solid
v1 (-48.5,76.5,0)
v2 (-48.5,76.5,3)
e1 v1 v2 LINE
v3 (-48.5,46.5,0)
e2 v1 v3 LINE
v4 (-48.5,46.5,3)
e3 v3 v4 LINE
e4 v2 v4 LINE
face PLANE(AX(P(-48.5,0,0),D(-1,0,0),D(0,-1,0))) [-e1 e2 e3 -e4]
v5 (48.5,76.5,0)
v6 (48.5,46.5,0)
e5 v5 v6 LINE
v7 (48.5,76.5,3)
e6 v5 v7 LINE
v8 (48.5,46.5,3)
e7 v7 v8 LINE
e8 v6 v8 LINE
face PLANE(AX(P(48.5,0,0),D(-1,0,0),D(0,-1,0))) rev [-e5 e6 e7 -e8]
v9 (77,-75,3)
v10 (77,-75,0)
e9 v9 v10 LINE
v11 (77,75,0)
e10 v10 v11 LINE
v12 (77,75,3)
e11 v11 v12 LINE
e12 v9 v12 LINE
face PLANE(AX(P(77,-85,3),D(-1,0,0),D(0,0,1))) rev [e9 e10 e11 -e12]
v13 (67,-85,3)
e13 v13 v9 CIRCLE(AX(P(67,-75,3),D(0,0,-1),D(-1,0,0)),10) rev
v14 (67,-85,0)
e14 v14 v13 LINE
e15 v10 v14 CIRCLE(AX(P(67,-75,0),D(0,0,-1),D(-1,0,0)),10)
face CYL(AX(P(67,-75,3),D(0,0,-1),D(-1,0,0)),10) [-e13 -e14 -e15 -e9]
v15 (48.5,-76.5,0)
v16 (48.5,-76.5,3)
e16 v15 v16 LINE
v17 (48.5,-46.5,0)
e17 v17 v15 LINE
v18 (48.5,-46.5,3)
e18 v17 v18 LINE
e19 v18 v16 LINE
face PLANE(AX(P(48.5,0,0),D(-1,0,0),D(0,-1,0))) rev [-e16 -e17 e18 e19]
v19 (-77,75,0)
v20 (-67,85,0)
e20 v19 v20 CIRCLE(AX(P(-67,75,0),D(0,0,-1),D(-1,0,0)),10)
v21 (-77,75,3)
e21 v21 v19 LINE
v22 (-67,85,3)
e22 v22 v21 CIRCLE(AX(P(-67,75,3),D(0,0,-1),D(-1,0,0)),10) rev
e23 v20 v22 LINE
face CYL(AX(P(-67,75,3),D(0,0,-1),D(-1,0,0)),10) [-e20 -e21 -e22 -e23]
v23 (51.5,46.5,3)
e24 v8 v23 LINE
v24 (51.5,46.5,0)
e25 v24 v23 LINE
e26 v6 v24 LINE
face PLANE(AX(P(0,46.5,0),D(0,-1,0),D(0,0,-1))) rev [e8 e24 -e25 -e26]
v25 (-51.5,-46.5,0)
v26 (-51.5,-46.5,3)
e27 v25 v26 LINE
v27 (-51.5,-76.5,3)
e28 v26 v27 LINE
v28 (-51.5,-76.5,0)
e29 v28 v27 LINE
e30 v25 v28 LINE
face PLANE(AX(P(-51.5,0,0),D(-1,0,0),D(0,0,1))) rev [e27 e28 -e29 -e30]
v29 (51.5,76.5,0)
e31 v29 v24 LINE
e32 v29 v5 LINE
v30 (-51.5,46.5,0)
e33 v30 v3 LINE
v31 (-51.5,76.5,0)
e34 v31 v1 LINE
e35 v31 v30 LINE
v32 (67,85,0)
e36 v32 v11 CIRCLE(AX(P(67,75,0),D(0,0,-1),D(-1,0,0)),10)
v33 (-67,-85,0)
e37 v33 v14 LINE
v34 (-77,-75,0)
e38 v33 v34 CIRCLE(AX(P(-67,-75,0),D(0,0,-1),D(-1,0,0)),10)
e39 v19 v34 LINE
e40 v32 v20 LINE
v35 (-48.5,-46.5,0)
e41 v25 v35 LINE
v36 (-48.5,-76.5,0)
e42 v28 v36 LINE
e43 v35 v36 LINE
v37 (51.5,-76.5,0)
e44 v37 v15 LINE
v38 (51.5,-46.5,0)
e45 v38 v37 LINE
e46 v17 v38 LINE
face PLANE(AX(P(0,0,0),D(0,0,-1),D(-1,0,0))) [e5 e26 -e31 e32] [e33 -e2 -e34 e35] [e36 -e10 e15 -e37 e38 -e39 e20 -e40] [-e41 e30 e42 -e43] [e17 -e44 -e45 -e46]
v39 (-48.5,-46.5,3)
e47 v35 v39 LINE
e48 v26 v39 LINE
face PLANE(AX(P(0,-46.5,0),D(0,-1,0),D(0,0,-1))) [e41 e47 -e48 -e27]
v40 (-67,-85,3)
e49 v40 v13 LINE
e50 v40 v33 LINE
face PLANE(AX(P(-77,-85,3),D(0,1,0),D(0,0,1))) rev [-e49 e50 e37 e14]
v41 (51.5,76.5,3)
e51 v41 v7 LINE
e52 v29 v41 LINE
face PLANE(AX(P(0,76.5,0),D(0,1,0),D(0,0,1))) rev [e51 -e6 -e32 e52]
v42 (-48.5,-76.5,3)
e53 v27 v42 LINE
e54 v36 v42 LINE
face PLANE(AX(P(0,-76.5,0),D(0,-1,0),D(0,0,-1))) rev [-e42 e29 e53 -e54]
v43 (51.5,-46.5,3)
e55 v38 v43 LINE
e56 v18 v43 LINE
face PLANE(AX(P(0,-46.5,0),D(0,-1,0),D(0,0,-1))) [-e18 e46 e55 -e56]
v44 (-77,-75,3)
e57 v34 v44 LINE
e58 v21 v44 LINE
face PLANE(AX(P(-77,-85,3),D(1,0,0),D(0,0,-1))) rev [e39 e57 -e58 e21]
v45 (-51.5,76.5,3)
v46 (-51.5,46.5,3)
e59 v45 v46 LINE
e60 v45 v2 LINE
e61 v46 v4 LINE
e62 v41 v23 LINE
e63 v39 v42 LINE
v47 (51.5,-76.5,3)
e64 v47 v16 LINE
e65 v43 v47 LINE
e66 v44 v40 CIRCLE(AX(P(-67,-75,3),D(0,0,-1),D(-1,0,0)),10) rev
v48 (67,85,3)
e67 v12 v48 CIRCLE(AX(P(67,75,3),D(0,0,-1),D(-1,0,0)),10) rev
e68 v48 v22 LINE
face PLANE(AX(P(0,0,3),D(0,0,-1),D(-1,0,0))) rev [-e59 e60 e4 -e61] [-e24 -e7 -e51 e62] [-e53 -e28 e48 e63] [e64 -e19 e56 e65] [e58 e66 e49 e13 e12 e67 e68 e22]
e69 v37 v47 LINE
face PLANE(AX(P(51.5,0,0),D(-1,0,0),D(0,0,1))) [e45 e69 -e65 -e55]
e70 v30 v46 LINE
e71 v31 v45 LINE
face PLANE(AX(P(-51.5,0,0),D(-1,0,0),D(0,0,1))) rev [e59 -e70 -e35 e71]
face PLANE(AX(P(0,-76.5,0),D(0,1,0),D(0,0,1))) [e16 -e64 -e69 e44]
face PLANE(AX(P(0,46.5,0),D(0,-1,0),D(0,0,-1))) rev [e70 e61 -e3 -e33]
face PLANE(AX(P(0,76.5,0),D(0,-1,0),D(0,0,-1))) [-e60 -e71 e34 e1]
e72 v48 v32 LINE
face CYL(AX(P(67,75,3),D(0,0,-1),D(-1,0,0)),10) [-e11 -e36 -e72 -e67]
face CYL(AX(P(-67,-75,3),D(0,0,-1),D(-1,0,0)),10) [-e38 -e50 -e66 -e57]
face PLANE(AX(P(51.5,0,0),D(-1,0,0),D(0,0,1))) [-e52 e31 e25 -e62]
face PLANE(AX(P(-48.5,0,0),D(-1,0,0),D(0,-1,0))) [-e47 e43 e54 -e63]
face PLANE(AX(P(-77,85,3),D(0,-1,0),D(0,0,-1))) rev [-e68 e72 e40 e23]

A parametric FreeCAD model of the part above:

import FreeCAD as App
import Part
import Sketcher
Q = App.Units.Quantity


def edges_at(feature, points):
    """Names of the edges that pass closest to the given points."""
    edges = feature.Shape.Edges
    near = lambda p: min(range(len(edges)), key=lambda i: edges[i].distToShape(Part.Vertex(*p))[0])
    return sorted({f"Edge{near(p) + 1}" for p in points})


def add_polygon(sketch, points):
    """Adds a closed chain of lines whose ends are joined by coincident constraints."""
    first, n = sketch.GeometryCount, len(points)
    for a, b in zip(points, points[1:] + points[:1]):
        sketch.addGeometry(Part.LineSegment(App.Vector(*a, 0), App.Vector(*b, 0)), False)
    for i in range(n):
        sketch.addConstraint(Sketcher.Constraint("Coincident", first + i, 2, first + (i + 1) % n, 1))

doc = App.newDocument("Part")
body = doc.addObject("PartDesign::Body", "Body")

# Sketch on XY plane
sketch1 = body.newObject("Sketcher::SketchObject", "Sketch")
sketch1.AttachmentSupport = (doc.getObject("XY_Plane"), [""])
sketch1.MapMode = "FlatFace"
add_polygon(sketch1, [(-77, 85), (-77, -85), (77, -85), (77, 85)])  # lines 0-3
sketch1.addConstraint([
    Sketcher.Constraint("Vertical", 0),
    Sketcher.Constraint("Horizontal", 1),
    Sketcher.Constraint("Vertical", 2),
    Sketcher.Constraint("Horizontal", 3),
    Sketcher.Constraint("Symmetric", 0, 2, 2, 2, -1, 1),
    Sketcher.Constraint("DistanceX", 1, 1, 1, 2, Q("154 mm")),
    Sketcher.Constraint("DistanceY", 0, 2, 0, 1, Q("170 mm")),
])
pad1 = body.newObject("PartDesign::Pad", "Pad")
pad1.Profile = sketch1
pad1.Length = 3
doc.recompute()

fillet = body.newObject("PartDesign::Fillet", "Fillet")
fillet.Base = (pad1, edges_at(pad1, [
    (77, -85, 1.5),
    (-77, -85, 1.5),
    (-77, 85, 1.5),
    (77, 85, 1.5),
]))
fillet.Radius = 10

# Sketch on XY plane
sketch2 = body.newObject("Sketcher::SketchObject", "Sketch001")
sketch2.AttachmentSupport = (doc.getObject("XY_Plane"), [""])
sketch2.MapMode = "FlatFace"
sketch2.AttachmentOffset = App.Placement(App.Vector(0, 0, 3), App.Rotation())
add_polygon(sketch2, [(-51.5, 76.5), (-51.5, 46.5), (-48.5, 46.5), (-48.5, 76.5)])  # lines 0-3
add_polygon(sketch2, [(48.5, 76.5), (48.5, 46.5), (51.5, 46.5), (51.5, 76.5)])  # lines 4-7
add_polygon(sketch2, [(48.5, -46.5), (48.5, -76.5), (51.5, -76.5), (51.5, -46.5)])  # lines 8-11
add_polygon(sketch2, [(-51.5, -46.5), (-51.5, -76.5), (-48.5, -76.5), (-48.5, -46.5)])  # lines 12-15
sketch2.addConstraint([
    Sketcher.Constraint("Vertical", 0),
    Sketcher.Constraint("Horizontal", 1),
    Sketcher.Constraint("Vertical", 2),
    Sketcher.Constraint("Horizontal", 3),
    Sketcher.Constraint("Vertical", 4),
    Sketcher.Constraint("Horizontal", 5),
    Sketcher.Constraint("Vertical", 6),
    Sketcher.Constraint("Horizontal", 7),
    Sketcher.Constraint("Vertical", 8),
    Sketcher.Constraint("Horizontal", 9),
    Sketcher.Constraint("Vertical", 10),
    Sketcher.Constraint("Horizontal", 11),
    Sketcher.Constraint("Vertical", 12),
    Sketcher.Constraint("Horizontal", 13),
    Sketcher.Constraint("Vertical", 14),
    Sketcher.Constraint("Horizontal", 15),
    Sketcher.Constraint("Symmetric", 2, 2, 8, 2, -1, 1),
    Sketcher.Constraint("Symmetric", 0, 2, 10, 2, -1, 1),
    Sketcher.Constraint("Symmetric", 6, 2, 12, 2, -1, 1),
    Sketcher.Constraint("Symmetric", 4, 2, 14, 2, -1, 1),
    Sketcher.Constraint("Symmetric", 1, 2, 4, 2, -2),
    Sketcher.Constraint("Symmetric", 3, 2, 6, 2, -2),
    Sketcher.Constraint("DistanceX", 1, 1, 1, 2, Q("3 mm")),
    Sketcher.Constraint("DistanceY", 0, 2, 0, 1, Q("30 mm")),
    Sketcher.Constraint("DistanceX", 1, 2, 4, 2, Q("97 mm")),
    Sketcher.Constraint("DistanceY", 8, 2, 4, 2, Q("123 mm")),
])
pocket1 = body.newObject("PartDesign::Pocket", "Pocket")
pocket1.Profile = sketch2
pocket1.Type = "ThroughAll"

doc.recompute()
